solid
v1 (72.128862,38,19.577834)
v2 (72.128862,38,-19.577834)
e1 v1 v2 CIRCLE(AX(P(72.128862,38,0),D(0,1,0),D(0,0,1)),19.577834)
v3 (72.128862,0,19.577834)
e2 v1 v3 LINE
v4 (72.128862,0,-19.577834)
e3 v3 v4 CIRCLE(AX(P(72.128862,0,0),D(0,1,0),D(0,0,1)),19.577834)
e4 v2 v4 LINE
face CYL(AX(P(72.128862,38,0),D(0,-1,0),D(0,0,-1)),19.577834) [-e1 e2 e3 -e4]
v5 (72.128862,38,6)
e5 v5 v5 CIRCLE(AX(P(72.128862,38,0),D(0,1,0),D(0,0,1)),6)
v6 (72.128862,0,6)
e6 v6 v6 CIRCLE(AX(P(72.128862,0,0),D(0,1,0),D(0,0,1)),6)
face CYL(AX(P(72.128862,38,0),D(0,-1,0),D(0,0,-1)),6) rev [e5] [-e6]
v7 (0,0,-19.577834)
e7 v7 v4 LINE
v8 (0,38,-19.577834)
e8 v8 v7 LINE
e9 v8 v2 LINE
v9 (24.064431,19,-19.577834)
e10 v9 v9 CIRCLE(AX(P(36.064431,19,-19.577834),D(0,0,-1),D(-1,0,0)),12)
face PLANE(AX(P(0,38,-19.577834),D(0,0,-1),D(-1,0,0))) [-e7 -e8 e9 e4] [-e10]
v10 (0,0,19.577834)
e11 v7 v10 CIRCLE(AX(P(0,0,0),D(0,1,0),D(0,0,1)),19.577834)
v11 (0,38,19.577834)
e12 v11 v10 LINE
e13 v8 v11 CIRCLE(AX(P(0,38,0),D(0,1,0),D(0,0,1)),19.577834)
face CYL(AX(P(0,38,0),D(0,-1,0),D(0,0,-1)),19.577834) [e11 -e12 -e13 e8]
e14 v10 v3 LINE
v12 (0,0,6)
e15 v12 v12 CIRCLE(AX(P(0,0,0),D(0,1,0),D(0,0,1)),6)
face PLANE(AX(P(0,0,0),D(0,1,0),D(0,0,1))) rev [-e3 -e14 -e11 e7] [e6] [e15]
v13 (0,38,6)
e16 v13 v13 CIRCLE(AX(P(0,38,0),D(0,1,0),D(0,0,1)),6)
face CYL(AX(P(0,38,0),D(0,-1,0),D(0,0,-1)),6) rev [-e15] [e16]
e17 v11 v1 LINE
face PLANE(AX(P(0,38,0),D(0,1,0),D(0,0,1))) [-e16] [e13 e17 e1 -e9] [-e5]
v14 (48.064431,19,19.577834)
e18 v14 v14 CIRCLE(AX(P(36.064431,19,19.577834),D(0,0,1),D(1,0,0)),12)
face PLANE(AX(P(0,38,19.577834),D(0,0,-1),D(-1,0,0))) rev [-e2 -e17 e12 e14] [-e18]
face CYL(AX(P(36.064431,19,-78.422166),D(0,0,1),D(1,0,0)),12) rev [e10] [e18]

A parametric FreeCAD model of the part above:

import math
import FreeCAD as App
import Part
import Sketcher
from FreeCAD import Vector

doc = App.newDocument("Part")
body = doc.addObject("PartDesign::Body", "Body")

sketch1 = body.newObject("Sketcher::SketchObject", "Sketch")
sketch1.AttachmentSupport = (doc.getObject("XZ_Plane"), [""])
sketch1.MapMode = "FlatFace"
sketch1.addGeometry(Part.LineSegment(Vector(72, -20, 0), Vector(0, -20, 0)), False)
sketch1.addGeometry(Part.ArcOfCircle(Part.Circle(Vector(0, 0, 0), Vector(0, 0, 1), 20), math.radians(90), math.radians(270)), False)
sketch1.addGeometry(Part.LineSegment(Vector(0, 20, 0), Vector(72, 20, 0)), False)
sketch1.addGeometry(Part.ArcOfCircle(Part.Circle(Vector(72, 0, 0), Vector(0, 0, 1), 20), math.radians(-90), math.radians(90)), False)
sketch1.addGeometry(Part.Circle(Vector(72, 0, 0), Vector(0, 0, 1), 6), False)
sketch1.addGeometry(Part.Circle(Vector(0, 0, 0), Vector(0, 0, 1), 6), False)
sketch1.addConstraint(Sketcher.Constraint("Tangent", 0, 2, 1, 2))
sketch1.addConstraint(Sketcher.Constraint("Tangent", 1, 1, 2, 1))
sketch1.addConstraint(Sketcher.Constraint("Tangent", 2, 2, 3, 2))
sketch1.addConstraint(Sketcher.Constraint("Tangent", 3, 1, 0, 1))
sketch1.addConstraint(Sketcher.Constraint("Horizontal", 0))
sketch1.addConstraint(Sketcher.Constraint("Horizontal", 2))
sketch1.addConstraint(Sketcher.Constraint("Coincident", 1, 3, -1, 1))
sketch1.addConstraint(Sketcher.Constraint("Coincident", 5, 3, -1, 1))
sketch1.addConstraint(Sketcher.Constraint("Coincident", 4, 3, 3, 3))
sketch1.addConstraint(Sketcher.Constraint("Equal", 4, 5))
sketch1.addConstraint(Sketcher.Constraint("Diameter", 4, 12.0))
sketch1.addConstraint(Sketcher.Constraint("Radius", 1, 19.577834))
sketch1.addConstraint(Sketcher.Constraint("DistanceX", 0, 2, 0, 1, 72.128862))
pad1 = body.newObject("PartDesign::Pad", "Pad")
pad1.Profile = sketch1
pad1.Length = 38
pad1.Reversed = True

sketch2 = body.newObject("Sketcher::SketchObject", "Sketch001")
sketch2.AttachmentSupport = (doc.getObject("XY_Plane"), [""])
sketch2.MapMode = "FlatFace"
sketch2.AttachmentOffset = App.Placement(Vector(0, 0, 19.577834), App.Rotation())
sketch2.addGeometry(Part.Circle(Vector(36, 19, 0), Vector(0, 0, 1), 12), False)
sketch2.addConstraint(Sketcher.Constraint("Diameter", 0, 24.0))
sketch2.addConstraint(Sketcher.Constraint("DistanceY", -1, 1, 0, 3, 19.0))
sketch2.addConstraint(Sketcher.Constraint("DistanceX", -1, 1, 0, 3, 36.064431))
pocket1 = body.newObject("PartDesign::Pocket", "Pocket")
pocket1.Profile = sketch2
pocket1.Length = 98

doc.recompute()
